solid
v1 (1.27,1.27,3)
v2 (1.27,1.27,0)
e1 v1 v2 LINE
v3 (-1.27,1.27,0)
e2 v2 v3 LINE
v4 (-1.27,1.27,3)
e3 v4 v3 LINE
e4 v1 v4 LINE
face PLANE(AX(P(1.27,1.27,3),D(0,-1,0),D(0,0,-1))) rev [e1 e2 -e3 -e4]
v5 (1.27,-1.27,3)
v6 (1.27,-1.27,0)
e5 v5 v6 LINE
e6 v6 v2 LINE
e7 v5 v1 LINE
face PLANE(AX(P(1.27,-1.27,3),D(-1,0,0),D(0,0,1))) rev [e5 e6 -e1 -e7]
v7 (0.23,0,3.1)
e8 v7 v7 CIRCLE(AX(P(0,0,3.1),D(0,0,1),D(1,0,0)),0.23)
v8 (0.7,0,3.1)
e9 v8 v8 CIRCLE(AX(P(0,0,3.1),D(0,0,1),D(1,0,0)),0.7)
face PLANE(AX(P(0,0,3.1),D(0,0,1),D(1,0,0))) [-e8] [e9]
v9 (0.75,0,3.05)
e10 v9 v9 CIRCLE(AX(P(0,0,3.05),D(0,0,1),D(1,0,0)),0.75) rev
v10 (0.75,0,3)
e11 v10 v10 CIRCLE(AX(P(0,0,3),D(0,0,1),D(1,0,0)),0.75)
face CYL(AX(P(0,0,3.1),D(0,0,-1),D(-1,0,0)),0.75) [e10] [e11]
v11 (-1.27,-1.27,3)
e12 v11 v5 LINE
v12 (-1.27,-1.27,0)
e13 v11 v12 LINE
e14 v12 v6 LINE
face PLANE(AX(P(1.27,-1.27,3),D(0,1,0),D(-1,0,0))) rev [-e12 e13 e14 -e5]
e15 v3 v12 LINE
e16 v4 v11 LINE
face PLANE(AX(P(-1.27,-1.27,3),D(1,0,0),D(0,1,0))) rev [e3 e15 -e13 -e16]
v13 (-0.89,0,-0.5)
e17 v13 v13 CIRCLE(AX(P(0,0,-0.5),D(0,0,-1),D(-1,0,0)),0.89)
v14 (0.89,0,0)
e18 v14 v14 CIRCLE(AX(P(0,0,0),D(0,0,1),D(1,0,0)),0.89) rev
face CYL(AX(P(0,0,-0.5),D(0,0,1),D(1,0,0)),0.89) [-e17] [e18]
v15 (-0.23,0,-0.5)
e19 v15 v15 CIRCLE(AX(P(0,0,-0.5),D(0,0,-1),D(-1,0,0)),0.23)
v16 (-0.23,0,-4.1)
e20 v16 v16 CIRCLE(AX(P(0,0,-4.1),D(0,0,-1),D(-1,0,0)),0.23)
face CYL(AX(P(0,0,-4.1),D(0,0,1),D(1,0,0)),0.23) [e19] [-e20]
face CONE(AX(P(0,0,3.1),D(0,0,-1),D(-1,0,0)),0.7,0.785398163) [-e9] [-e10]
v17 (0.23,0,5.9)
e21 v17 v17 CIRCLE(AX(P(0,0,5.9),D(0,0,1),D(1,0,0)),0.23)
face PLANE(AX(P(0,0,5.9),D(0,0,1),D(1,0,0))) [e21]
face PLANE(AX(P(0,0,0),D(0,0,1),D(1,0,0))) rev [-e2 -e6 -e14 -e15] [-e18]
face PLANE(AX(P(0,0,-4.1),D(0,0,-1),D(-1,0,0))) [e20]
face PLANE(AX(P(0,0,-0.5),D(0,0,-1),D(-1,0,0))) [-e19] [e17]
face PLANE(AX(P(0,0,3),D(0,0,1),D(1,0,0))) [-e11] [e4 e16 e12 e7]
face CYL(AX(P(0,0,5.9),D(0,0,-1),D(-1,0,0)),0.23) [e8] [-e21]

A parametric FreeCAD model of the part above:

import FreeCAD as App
import Part
import Sketcher


def edges_at(feature, points):
    """Names of the edges that pass closest to the given points."""
    edges = feature.Shape.Edges
    near = lambda p: min(range(len(edges)), key=lambda i: edges[i].distToShape(Part.Vertex(*p))[0])
    return sorted({f"Edge{near(p) + 1}" for p in points})


def add_polygon(sketch, points):
    """Adds a closed chain of lines whose ends are joined by coincident constraints."""
    first, n = sketch.GeometryCount, len(points)
    for a, b in zip(points, points[1:] + points[:1]):
        sketch.addGeometry(Part.LineSegment(App.Vector(*a, 0), App.Vector(*b, 0)), False)
    for i in range(n):
        sketch.addConstraint(Sketcher.Constraint("Coincident", first + i, 2, first + (i + 1) % n, 1))

doc = App.newDocument("Part")
body = doc.addObject("PartDesign::Body", "Body")

# Sketch on XY plane
sketch1 = doc.addObject("Sketcher::SketchObject", "Sketch")
body.addObject(sketch1)
sketch1.AttachmentSupport = (doc.XY_Plane, [""])
sketch1.MapMode = "FlatFace"
add_polygon(sketch1, [(-1.27, 1.27), (-1.27, -1.27), (1.27, -1.27), (1.27, 1.27)])  # lines 0-3
sketch1.addConstraint(Sketcher.Constraint("Vertical", 0))
sketch1.addConstraint(Sketcher.Constraint("Horizontal", 1))
sketch1.addConstraint(Sketcher.Constraint("Vertical", 2))
sketch1.addConstraint(Sketcher.Constraint("Horizontal", 3))
sketch1.addConstraint(Sketcher.Constraint("Symmetric", 0, 2, 2, 2, -1, 1))
sketch1.addConstraint(Sketcher.Constraint("Equal", 3, 0))
sketch1.addConstraint(Sketcher.Constraint("DistanceX", 1, 1, 1, 2, 2.54))
pad1 = doc.addObject("PartDesign::Pad", "Pad")
body.addObject(pad1)
pad1.Profile = sketch1
pad1.Length = 3

# Sketch on XY plane
sketch2 = doc.addObject("Sketcher::SketchObject", "Sketch001")
body.addObject(sketch2)
sketch2.AttachmentSupport = (doc.XY_Plane, [""])
sketch2.MapMode = "FlatFace"
sketch2.addGeometry(Part.Circle(App.Vector(0, 0, 0), App.Vector(0, 0, 1), 0.23), False)
sketch2.addConstraint(Sketcher.Constraint("Coincident", 0, 3, -1, 1))
sketch2.addConstraint(Sketcher.Constraint("Diameter", 0, 0.46))
pad2 = doc.addObject("PartDesign::Pad", "Pad001")
body.addObject(pad2)
pad2.Profile = sketch2
pad2.Length = 4.1
pad2.Reversed = True

# Sketch on XY plane
sketch3 = doc.addObject("Sketcher::SketchObject", "Sketch002")
body.addObject(sketch3)
sketch3.AttachmentSupport = (doc.XY_Plane, [""])
sketch3.MapMode = "FlatFace"
sketch3.addGeometry(Part.Circle(App.Vector(0, 0, 0), App.Vector(0, 0, 1), 0.89), False)
sketch3.addConstraint(Sketcher.Constraint("Coincident", 0, 3, -1, 1))
sketch3.addConstraint(Sketcher.Constraint("Diameter", 0, 1.78))
pad3 = doc.addObject("PartDesign::Pad", "Pad002")
body.addObject(pad3)
pad3.Profile = sketch3
pad3.Length = 0.5
pad3.Reversed = True

# Sketch on XY plane
sketch4 = doc.addObject("Sketcher::SketchObject", "Sketch003")
body.addObject(sketch4)
sketch4.AttachmentSupport = (doc.XY_Plane, [""])
sketch4.MapMode = "FlatFace"
sketch4.AttachmentOffset = App.Placement(App.Vector(0, 0, 3), App.Rotation())
sketch4.addGeometry(Part.Circle(App.Vector(0, 0, 0), App.Vector(0, 0, 1), 0.23), False)
sketch4.addConstraint(Sketcher.Constraint("Coincident", 0, 3, -1, 1))
sketch4.addConstraint(Sketcher.Constraint("Diameter", 0, 0.46))
pad4 = doc.addObject("PartDesign::Pad", "Pad003")
body.addObject(pad4)
pad4.Profile = sketch4
pad4.Length = 2.9

# Sketch on XY plane
sketch5 = doc.addObject("Sketcher::SketchObject", "Sketch004")
body.addObject(sketch5)
sketch5.AttachmentSupport = (doc.XY_Plane, [""])
sketch5.MapMode = "FlatFace"
sketch5.AttachmentOffset = App.Placement(App.Vector(0, 0, 3), App.Rotation())
sketch5.addGeometry(Part.Circle(App.Vector(0, 0, 0), App.Vector(0, 0, 1), 0.75), False)
sketch5.addConstraint(Sketcher.Constraint("Coincident", 0, 3, -1, 1))
sketch5.addConstraint(Sketcher.Constraint("Diameter", 0, 1.5))
pad5 = doc.addObject("PartDesign::Pad", "Pad004")
body.addObject(pad5)
pad5.Profile = sketch5
pad5.Length = 0.1
doc.recompute()

chamfer = doc.addObject("PartDesign::Chamfer", "Chamfer")
body.addObject(chamfer)
chamfer.Base = (pad5, edges_at(pad5, [(-0.75, 0, 3.1)]))
chamfer.Size = 0.05

doc.recompute()
